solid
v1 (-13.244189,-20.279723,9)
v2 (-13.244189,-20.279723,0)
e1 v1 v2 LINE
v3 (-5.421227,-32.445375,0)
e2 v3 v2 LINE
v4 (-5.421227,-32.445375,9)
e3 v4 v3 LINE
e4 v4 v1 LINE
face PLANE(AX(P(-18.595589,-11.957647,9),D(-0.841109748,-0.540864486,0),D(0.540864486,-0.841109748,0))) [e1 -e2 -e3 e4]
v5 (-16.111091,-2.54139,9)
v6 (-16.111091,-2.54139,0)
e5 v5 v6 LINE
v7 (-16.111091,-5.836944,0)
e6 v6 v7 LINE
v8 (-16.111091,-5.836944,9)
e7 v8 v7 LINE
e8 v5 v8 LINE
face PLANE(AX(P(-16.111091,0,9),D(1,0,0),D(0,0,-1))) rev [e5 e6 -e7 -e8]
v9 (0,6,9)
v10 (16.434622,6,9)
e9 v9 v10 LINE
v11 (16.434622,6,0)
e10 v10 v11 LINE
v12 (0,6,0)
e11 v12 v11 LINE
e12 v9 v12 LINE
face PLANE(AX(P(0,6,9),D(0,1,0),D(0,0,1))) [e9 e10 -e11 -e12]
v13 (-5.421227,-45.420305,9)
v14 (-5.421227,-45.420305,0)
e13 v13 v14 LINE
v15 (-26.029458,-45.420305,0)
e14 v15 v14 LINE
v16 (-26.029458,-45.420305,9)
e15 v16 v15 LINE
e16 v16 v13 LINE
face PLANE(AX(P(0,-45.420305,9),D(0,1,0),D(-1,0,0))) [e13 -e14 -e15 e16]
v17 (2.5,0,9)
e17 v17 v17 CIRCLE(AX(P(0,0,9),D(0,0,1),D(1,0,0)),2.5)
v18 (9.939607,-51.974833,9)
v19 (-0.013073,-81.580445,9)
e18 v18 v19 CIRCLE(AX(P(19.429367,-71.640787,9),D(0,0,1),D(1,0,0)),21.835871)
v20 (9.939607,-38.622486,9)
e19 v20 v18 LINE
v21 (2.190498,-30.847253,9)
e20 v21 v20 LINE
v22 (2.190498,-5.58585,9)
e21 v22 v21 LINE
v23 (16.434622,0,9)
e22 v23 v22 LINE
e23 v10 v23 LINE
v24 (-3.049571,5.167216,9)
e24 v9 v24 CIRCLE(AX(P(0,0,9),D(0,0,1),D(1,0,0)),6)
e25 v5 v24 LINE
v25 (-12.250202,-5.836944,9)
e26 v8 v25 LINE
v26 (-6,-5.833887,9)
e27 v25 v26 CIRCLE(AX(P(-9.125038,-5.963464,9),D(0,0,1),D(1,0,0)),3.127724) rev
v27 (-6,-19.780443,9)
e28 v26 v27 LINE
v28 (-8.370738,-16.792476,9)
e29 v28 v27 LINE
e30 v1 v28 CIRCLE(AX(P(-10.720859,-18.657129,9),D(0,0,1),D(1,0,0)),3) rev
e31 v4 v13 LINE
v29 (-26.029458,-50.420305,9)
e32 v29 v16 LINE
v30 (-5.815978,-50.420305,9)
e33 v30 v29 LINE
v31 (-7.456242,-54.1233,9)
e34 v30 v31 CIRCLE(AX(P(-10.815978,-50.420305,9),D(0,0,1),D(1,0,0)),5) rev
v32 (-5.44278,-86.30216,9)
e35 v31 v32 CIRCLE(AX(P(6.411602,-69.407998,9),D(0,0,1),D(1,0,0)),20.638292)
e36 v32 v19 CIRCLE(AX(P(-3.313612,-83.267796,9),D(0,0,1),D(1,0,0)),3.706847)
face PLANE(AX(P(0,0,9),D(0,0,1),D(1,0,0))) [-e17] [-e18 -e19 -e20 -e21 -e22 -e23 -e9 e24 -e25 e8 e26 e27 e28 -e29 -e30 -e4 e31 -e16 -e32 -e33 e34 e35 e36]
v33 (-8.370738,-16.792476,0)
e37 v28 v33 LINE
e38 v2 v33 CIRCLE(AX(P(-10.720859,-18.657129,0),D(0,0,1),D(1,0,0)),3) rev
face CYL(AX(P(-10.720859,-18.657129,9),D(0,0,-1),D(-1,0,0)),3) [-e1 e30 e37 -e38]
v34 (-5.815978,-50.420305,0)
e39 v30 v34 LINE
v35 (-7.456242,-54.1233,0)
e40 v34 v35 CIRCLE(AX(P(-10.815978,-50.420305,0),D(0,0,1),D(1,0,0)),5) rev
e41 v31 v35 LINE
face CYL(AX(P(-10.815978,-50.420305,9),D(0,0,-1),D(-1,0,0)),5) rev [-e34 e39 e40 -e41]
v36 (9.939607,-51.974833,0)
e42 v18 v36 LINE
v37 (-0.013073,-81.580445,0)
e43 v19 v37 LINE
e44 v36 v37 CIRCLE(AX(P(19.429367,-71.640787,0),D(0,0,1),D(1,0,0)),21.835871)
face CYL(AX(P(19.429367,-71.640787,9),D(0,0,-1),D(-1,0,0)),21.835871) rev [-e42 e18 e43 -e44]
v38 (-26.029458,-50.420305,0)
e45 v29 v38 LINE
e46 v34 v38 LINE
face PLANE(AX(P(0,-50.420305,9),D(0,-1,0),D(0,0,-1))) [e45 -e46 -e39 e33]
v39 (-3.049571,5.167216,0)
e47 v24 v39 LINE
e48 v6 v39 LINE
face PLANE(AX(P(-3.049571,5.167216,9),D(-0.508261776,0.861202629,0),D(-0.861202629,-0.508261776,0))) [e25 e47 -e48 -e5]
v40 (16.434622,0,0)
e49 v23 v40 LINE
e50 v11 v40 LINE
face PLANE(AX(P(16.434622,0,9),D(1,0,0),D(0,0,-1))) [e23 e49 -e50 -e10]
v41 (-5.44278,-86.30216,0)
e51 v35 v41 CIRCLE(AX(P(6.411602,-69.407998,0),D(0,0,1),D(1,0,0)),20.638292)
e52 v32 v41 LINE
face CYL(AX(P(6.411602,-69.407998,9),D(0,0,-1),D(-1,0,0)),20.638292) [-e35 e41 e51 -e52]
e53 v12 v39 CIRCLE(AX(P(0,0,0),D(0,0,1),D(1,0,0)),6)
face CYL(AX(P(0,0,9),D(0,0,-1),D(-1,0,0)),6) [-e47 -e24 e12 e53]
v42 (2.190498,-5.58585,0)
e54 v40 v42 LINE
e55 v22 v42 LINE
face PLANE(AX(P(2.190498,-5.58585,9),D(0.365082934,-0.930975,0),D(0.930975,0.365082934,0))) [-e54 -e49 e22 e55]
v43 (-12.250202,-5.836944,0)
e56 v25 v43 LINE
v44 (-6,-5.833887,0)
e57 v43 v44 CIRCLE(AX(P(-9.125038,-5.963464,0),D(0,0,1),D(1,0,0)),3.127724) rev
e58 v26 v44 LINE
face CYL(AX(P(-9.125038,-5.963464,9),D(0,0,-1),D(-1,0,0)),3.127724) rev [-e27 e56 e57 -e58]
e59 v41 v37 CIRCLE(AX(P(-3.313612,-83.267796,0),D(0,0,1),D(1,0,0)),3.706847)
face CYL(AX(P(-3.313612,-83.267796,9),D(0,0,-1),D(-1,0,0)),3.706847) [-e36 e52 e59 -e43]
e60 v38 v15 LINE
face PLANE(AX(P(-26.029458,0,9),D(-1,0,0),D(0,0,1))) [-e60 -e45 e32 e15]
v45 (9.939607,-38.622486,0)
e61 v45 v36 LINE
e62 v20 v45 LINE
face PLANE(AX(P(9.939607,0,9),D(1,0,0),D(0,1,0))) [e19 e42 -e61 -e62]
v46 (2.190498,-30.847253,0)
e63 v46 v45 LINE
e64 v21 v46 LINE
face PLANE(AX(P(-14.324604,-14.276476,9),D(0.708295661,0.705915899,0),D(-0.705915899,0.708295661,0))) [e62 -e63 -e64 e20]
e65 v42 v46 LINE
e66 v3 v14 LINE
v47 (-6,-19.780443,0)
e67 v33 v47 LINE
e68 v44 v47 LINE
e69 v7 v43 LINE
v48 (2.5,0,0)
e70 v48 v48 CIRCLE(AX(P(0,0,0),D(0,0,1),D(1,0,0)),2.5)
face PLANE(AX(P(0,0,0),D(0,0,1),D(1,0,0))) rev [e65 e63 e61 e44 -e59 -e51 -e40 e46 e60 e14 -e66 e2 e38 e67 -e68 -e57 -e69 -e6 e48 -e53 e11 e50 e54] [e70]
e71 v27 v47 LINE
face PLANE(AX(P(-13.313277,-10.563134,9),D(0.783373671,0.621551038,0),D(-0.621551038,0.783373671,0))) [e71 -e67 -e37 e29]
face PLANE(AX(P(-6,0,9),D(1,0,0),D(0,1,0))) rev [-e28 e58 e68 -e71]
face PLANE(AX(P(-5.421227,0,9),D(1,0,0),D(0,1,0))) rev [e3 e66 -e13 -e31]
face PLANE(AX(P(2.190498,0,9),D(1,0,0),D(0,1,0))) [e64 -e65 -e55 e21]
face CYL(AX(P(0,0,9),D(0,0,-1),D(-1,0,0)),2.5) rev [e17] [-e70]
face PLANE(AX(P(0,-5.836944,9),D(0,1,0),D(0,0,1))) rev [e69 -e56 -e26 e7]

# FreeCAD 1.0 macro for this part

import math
import FreeCAD as App
import Part
import Sketcher

V = App.Vector
Q = App.Units.Quantity

doc = App.newDocument("Part")
body = doc.addObject("PartDesign::Body", "Body")

sketch1 = doc.addObject("Sketcher::SketchObject", "Sketch")
body.addObject(sketch1)
sketch1.AttachmentSupport = (doc.XY_Plane, [""])
sketch1.MapMode = "FlatFace"
sketch1.addGeometry(Part.LineSegment(V(-3.049571, 5.167216, 0), V(-16.111091, -2.54139, 0)), False)
sketch1.addGeometry(Part.LineSegment(V(-16.111091, -2.54139, 0), V(-16.111091, -5.836944, 0)), False)
sketch1.addGeometry(Part.LineSegment(V(-16.111091, -5.836944, 0), V(-12.250202, -5.836944, 0)), False)
sketch1.addGeometry(Part.ArcOfCircle(Part.Circle(V(-9.125038, -5.963464, 0), V(0, 0, 1), 3.127724), math.radians(2.374343), math.radians(177.681692)), False)
sketch1.addGeometry(Part.LineSegment(V(-6, -5.833887, 0), V(-6, -19.780443, 0)), False)
sketch1.addGeometry(Part.LineSegment(V(-6, -19.780443, 0), V(-8.370738, -16.792476, 0)), False)
sketch1.addGeometry(Part.ArcOfCircle(Part.Circle(V(-10.720859, -18.657129, 0), V(0, 0, 1), 3), math.radians(38.429488), math.radians(125.543226)), False)
sketch1.addGeometry(Part.ArcOfCircle(Part.Circle(V(-10.720859, -18.657129, 0), V(0, 0, 1), 3), math.radians(125.543226), math.radians(212.742508)), False)
sketch1.addGeometry(Part.LineSegment(V(-13.244189, -20.279723, 0), V(-5.421227, -32.445375, 0)), False)
sketch1.addGeometry(Part.LineSegment(V(-5.421227, -32.445375, 0), V(-5.421227, -45.420305, 0)), False)
sketch1.addGeometry(Part.LineSegment(V(-5.421227, -45.420305, 0), V(-26.029458, -45.420305, 0)), False)
sketch1.addGeometry(Part.LineSegment(V(-26.029458, -45.420305, 0), V(-26.029458, -50.420305, 0)), False)
sketch1.addGeometry(Part.LineSegment(V(-26.029458, -50.420305, 0), V(-5.815978, -50.420305, 0)), False)
sketch1.addGeometry(Part.ArcOfCircle(Part.Circle(V(-10.815978, -50.420305, 0), V(0, 0, 1), 5), math.radians(-47.782465), math.radians(0)), False)
sketch1.addGeometry(Part.ArcOfCircle(Part.Circle(V(6.411602, -69.407998, 0), V(0, 0, 1), 20.638292), math.radians(132.217535), math.radians(234.943232)), False)
sketch1.addGeometry(Part.ArcOfCircle(Part.Circle(V(-3.313612, -83.267796, 0), V(0, 0, 1), 3.706847), math.radians(-125.056768), math.radians(27.077713)), False)
sketch1.addGeometry(Part.ArcOfCircle(Part.Circle(V(19.429367, -71.640787, 0), V(0, 0, 1), 21.835871), math.radians(115.759523), math.radians(207.077713)), False)
sketch1.addGeometry(Part.LineSegment(V(9.939607, -51.974833, 0), V(9.939607, -38.622486, 0)), False)
sketch1.addGeometry(Part.LineSegment(V(9.939607, -38.622486, 0), V(2.190498, -30.847253, 0)), False)
sketch1.addGeometry(Part.LineSegment(V(2.190498, -30.847253, 0), V(2.190498, -5.58585, 0)), False)
sketch1.addGeometry(Part.LineSegment(V(2.190498, -5.58585, 0), V(16.434622, 0, 0)), False)
sketch1.addGeometry(Part.LineSegment(V(16.434622, 0, 0), V(16.434622, 6, 0)), False)
sketch1.addGeometry(Part.LineSegment(V(16.434622, 6, 0), V(0, 6, 0)), False)
sketch1.addGeometry(Part.ArcOfCircle(Part.Circle(V(0, 0, 0), V(0, 0, 1), 6), math.radians(90), math.radians(120.548117)), False)
sketch1.addGeometry(Part.Circle(V(0, 0, 0), V(0, 0, 1), 2.5), False)
sketch1.addConstraint(Sketcher.Constraint("Coincident", 0, 2, 1, 1))
sketch1.addConstraint(Sketcher.Constraint("Coincident", 1, 2, 2, 1))
sketch1.addConstraint(Sketcher.Constraint("Coincident", 2, 2, 3, 2))
sketch1.addConstraint(Sketcher.Constraint("Coincident", 3, 1, 4, 1))
sketch1.addConstraint(Sketcher.Constraint("Coincident", 4, 2, 5, 1))
sketch1.addConstraint(Sketcher.Constraint("Tangent", 5, 2, 6, 1))
sketch1.addConstraint(Sketcher.Constraint("Tangent", 6, 2, 7, 1))
sketch1.addConstraint(Sketcher.Constraint("Tangent", 7, 2, 8, 1))
sketch1.addConstraint(Sketcher.Constraint("Coincident", 8, 2, 9, 1))
sketch1.addConstraint(Sketcher.Constraint("Coincident", 9, 2, 10, 1))
sketch1.addConstraint(Sketcher.Constraint("Coincident", 10, 2, 11, 1))
sketch1.addConstraint(Sketcher.Constraint("Coincident", 11, 2, 12, 1))
sketch1.addConstraint(Sketcher.Constraint("Coincident", 12, 2, 13, 2))
sketch1.addConstraint(Sketcher.Constraint("Tangent", 13, 1, 14, 1))
sketch1.addConstraint(Sketcher.Constraint("Tangent", 14, 2, 15, 1))
sketch1.addConstraint(Sketcher.Constraint("Tangent", 15, 2, 16, 2))
sketch1.addConstraint(Sketcher.Constraint("Coincident", 16, 1, 17, 1))
sketch1.addConstraint(Sketcher.Constraint("Coincident", 17, 2, 18, 1))
sketch1.addConstraint(Sketcher.Constraint("Coincident", 18, 2, 19, 1))
sketch1.addConstraint(Sketcher.Constraint("Coincident", 19, 2, 20, 1))
sketch1.addConstraint(Sketcher.Constraint("Coincident", 20, 2, 21, 1))
sketch1.addConstraint(Sketcher.Constraint("Coincident", 21, 2, 22, 1))
sketch1.addConstraint(Sketcher.Constraint("Tangent", 22, 2, 23, 1))
sketch1.addConstraint(Sketcher.Constraint("Tangent", 23, 2, 0, 1))
sketch1.addConstraint(Sketcher.Constraint("Vertical", 1))
sketch1.addConstraint(Sketcher.Constraint("Horizontal", 2))
sketch1.addConstraint(Sketcher.Constraint("Vertical", 4))
sketch1.addConstraint(Sketcher.Constraint("Vertical", 9))
sketch1.addConstraint(Sketcher.Constraint("Horizontal", 10))
sketch1.addConstraint(Sketcher.Constraint("Vertical", 11))
sketch1.addConstraint(Sketcher.Constraint("Horizontal", 12))
sketch1.addConstraint(Sketcher.Constraint("Vertical", 17))
sketch1.addConstraint(Sketcher.Constraint("Vertical", 19))
sketch1.addConstraint(Sketcher.Constraint("Vertical", 21))
sketch1.addConstraint(Sketcher.Constraint("Horizontal", 22))
sketch1.addConstraint(Sketcher.Constraint("Coincident", 23, 3, -1, 1))
sketch1.addConstraint(Sketcher.Constraint("Coincident", 24, 3, -1, 1))
sketch1.addConstraint(Sketcher.Constraint("Equal", 6, 7))
sketch1.addConstraint(Sketcher.Constraint("PointOnObject", 20, 2, -1))
sketch1.addConstraint(Sketcher.Constraint("Horizontal", 13, 3, 11, 2))
sketch1.addConstraint(Sketcher.Constraint("Diameter", 24, Q("5 mm")))
sketch1.addConstraint(Sketcher.Constraint("Radius", 6, Q("3 mm")))
sketch1.addConstraint(Sketcher.Constraint("Radius", 13, Q("5 mm")))
sketch1.addConstraint(Sketcher.Constraint("Radius", 23, Q("6 mm")))
sketch1.addConstraint(Sketcher.Constraint("DistanceY", 11, 2, 11, 1, Q("5 mm")))
sketch1.addConstraint(Sketcher.Constraint("DistanceX", 3, 1, -1, 1, Q("6 mm")))
sketch1.addConstraint(Sketcher.Constraint("Radius", 14, Q("20.638292 mm")))
sketch1.addConstraint(Sketcher.Constraint("Radius", 16, Q("21.835871 mm")))
sketch1.addConstraint(Sketcher.Constraint("Radius", 3, Q("3.127724 mm")))
sketch1.addConstraint(Sketcher.Constraint("Radius", 15, Q("3.706847 mm")))
sketch1.addConstraint(Sketcher.Constraint("DistanceX", 2, 1, 2, 2, Q("3.860889 mm")))
sketch1.addConstraint(Sketcher.Constraint("DistanceX", 10, 2, 10, 1, Q("20.608231 mm")))
sketch1.addConstraint(Sketcher.Constraint("DistanceX", 12, 1, 12, 2, Q("20.21348 mm")))
sketch1.addConstraint(Sketcher.Constraint("DistanceX", 22, 2, 22, 1, Q("16.434622 mm")))
sketch1.addConstraint(Sketcher.Constraint("DistanceY", 9, 2, 9, 1, Q("12.97493 mm")))
sketch1.addConstraint(Sketcher.Constraint("DistanceX", 2, 2, -1, 1, Q("12.250202 mm")))
sketch1.addConstraint(Sketcher.Constraint("DistanceY", 13, 1, -1, 1, Q("54.1233 mm")))
sketch1.addConstraint(Sketcher.Constraint("DistanceY", 15, 3, 14, 3, Q("13.859799 mm")))
sketch1.addConstraint(Sketcher.Constraint("DistanceY", 4, 2, 2, 2, Q("13.943499 mm")))
sketch1.addConstraint(Sketcher.Constraint("DistanceX", 3, 3, 5, 2, Q("0.7543 mm")))
sketch1.addConstraint(Sketcher.Constraint("DistanceY", 8, 2, 5, 2, Q("15.652898 mm")))
sketch1.addConstraint(Sketcher.Constraint("DistanceX", 10, 2, 7, 3, Q("15.308599 mm")))
sketch1.addConstraint(Sketcher.Constraint("DistanceX", 12, 2, 14, 2, Q("0.373198 mm")))
sketch1.addConstraint(Sketcher.Constraint("DistanceX", 2, 2, 19, 2, Q("14.4407 mm")))
sketch1.addConstraint(Sketcher.Constraint("Distance", 5, Q("3.81423 mm")))
sketch1.addConstraint(Sketcher.Constraint("Distance", 8, Q("14.46381 mm")))
sketch1.addConstraint(Sketcher.Constraint("DistanceY", 1, 2, 1, 1, Q("3.295554 mm")))
sketch1.addConstraint(Sketcher.Constraint("DistanceY", 17, 1, 17, 2, Q("13.352347 mm")))
sketch1.addConstraint(Sketcher.Constraint("DistanceY", 19, 1, 19, 2, Q("25.261403 mm")))
sketch1.addConstraint(Sketcher.Constraint("DistanceX", 6, 2, -1, 1, Q("12.46481 mm")))
sketch1.addConstraint(Sketcher.Constraint("DistanceY", 19, 2, -1, 1, Q("5.58585 mm")))
sketch1.addConstraint(Sketcher.Constraint("DistanceY", 16, 3, 14, 3, Q("2.232789 mm")))
sketch1.addConstraint(Sketcher.Constraint("DistanceY", 16, 1, 12, 2, Q("1.554528 mm")))
pad1 = doc.addObject("PartDesign::Pad", "Pad")
body.addObject(pad1)
pad1.Profile = sketch1
pad1.Length = 9

doc.recompute()
